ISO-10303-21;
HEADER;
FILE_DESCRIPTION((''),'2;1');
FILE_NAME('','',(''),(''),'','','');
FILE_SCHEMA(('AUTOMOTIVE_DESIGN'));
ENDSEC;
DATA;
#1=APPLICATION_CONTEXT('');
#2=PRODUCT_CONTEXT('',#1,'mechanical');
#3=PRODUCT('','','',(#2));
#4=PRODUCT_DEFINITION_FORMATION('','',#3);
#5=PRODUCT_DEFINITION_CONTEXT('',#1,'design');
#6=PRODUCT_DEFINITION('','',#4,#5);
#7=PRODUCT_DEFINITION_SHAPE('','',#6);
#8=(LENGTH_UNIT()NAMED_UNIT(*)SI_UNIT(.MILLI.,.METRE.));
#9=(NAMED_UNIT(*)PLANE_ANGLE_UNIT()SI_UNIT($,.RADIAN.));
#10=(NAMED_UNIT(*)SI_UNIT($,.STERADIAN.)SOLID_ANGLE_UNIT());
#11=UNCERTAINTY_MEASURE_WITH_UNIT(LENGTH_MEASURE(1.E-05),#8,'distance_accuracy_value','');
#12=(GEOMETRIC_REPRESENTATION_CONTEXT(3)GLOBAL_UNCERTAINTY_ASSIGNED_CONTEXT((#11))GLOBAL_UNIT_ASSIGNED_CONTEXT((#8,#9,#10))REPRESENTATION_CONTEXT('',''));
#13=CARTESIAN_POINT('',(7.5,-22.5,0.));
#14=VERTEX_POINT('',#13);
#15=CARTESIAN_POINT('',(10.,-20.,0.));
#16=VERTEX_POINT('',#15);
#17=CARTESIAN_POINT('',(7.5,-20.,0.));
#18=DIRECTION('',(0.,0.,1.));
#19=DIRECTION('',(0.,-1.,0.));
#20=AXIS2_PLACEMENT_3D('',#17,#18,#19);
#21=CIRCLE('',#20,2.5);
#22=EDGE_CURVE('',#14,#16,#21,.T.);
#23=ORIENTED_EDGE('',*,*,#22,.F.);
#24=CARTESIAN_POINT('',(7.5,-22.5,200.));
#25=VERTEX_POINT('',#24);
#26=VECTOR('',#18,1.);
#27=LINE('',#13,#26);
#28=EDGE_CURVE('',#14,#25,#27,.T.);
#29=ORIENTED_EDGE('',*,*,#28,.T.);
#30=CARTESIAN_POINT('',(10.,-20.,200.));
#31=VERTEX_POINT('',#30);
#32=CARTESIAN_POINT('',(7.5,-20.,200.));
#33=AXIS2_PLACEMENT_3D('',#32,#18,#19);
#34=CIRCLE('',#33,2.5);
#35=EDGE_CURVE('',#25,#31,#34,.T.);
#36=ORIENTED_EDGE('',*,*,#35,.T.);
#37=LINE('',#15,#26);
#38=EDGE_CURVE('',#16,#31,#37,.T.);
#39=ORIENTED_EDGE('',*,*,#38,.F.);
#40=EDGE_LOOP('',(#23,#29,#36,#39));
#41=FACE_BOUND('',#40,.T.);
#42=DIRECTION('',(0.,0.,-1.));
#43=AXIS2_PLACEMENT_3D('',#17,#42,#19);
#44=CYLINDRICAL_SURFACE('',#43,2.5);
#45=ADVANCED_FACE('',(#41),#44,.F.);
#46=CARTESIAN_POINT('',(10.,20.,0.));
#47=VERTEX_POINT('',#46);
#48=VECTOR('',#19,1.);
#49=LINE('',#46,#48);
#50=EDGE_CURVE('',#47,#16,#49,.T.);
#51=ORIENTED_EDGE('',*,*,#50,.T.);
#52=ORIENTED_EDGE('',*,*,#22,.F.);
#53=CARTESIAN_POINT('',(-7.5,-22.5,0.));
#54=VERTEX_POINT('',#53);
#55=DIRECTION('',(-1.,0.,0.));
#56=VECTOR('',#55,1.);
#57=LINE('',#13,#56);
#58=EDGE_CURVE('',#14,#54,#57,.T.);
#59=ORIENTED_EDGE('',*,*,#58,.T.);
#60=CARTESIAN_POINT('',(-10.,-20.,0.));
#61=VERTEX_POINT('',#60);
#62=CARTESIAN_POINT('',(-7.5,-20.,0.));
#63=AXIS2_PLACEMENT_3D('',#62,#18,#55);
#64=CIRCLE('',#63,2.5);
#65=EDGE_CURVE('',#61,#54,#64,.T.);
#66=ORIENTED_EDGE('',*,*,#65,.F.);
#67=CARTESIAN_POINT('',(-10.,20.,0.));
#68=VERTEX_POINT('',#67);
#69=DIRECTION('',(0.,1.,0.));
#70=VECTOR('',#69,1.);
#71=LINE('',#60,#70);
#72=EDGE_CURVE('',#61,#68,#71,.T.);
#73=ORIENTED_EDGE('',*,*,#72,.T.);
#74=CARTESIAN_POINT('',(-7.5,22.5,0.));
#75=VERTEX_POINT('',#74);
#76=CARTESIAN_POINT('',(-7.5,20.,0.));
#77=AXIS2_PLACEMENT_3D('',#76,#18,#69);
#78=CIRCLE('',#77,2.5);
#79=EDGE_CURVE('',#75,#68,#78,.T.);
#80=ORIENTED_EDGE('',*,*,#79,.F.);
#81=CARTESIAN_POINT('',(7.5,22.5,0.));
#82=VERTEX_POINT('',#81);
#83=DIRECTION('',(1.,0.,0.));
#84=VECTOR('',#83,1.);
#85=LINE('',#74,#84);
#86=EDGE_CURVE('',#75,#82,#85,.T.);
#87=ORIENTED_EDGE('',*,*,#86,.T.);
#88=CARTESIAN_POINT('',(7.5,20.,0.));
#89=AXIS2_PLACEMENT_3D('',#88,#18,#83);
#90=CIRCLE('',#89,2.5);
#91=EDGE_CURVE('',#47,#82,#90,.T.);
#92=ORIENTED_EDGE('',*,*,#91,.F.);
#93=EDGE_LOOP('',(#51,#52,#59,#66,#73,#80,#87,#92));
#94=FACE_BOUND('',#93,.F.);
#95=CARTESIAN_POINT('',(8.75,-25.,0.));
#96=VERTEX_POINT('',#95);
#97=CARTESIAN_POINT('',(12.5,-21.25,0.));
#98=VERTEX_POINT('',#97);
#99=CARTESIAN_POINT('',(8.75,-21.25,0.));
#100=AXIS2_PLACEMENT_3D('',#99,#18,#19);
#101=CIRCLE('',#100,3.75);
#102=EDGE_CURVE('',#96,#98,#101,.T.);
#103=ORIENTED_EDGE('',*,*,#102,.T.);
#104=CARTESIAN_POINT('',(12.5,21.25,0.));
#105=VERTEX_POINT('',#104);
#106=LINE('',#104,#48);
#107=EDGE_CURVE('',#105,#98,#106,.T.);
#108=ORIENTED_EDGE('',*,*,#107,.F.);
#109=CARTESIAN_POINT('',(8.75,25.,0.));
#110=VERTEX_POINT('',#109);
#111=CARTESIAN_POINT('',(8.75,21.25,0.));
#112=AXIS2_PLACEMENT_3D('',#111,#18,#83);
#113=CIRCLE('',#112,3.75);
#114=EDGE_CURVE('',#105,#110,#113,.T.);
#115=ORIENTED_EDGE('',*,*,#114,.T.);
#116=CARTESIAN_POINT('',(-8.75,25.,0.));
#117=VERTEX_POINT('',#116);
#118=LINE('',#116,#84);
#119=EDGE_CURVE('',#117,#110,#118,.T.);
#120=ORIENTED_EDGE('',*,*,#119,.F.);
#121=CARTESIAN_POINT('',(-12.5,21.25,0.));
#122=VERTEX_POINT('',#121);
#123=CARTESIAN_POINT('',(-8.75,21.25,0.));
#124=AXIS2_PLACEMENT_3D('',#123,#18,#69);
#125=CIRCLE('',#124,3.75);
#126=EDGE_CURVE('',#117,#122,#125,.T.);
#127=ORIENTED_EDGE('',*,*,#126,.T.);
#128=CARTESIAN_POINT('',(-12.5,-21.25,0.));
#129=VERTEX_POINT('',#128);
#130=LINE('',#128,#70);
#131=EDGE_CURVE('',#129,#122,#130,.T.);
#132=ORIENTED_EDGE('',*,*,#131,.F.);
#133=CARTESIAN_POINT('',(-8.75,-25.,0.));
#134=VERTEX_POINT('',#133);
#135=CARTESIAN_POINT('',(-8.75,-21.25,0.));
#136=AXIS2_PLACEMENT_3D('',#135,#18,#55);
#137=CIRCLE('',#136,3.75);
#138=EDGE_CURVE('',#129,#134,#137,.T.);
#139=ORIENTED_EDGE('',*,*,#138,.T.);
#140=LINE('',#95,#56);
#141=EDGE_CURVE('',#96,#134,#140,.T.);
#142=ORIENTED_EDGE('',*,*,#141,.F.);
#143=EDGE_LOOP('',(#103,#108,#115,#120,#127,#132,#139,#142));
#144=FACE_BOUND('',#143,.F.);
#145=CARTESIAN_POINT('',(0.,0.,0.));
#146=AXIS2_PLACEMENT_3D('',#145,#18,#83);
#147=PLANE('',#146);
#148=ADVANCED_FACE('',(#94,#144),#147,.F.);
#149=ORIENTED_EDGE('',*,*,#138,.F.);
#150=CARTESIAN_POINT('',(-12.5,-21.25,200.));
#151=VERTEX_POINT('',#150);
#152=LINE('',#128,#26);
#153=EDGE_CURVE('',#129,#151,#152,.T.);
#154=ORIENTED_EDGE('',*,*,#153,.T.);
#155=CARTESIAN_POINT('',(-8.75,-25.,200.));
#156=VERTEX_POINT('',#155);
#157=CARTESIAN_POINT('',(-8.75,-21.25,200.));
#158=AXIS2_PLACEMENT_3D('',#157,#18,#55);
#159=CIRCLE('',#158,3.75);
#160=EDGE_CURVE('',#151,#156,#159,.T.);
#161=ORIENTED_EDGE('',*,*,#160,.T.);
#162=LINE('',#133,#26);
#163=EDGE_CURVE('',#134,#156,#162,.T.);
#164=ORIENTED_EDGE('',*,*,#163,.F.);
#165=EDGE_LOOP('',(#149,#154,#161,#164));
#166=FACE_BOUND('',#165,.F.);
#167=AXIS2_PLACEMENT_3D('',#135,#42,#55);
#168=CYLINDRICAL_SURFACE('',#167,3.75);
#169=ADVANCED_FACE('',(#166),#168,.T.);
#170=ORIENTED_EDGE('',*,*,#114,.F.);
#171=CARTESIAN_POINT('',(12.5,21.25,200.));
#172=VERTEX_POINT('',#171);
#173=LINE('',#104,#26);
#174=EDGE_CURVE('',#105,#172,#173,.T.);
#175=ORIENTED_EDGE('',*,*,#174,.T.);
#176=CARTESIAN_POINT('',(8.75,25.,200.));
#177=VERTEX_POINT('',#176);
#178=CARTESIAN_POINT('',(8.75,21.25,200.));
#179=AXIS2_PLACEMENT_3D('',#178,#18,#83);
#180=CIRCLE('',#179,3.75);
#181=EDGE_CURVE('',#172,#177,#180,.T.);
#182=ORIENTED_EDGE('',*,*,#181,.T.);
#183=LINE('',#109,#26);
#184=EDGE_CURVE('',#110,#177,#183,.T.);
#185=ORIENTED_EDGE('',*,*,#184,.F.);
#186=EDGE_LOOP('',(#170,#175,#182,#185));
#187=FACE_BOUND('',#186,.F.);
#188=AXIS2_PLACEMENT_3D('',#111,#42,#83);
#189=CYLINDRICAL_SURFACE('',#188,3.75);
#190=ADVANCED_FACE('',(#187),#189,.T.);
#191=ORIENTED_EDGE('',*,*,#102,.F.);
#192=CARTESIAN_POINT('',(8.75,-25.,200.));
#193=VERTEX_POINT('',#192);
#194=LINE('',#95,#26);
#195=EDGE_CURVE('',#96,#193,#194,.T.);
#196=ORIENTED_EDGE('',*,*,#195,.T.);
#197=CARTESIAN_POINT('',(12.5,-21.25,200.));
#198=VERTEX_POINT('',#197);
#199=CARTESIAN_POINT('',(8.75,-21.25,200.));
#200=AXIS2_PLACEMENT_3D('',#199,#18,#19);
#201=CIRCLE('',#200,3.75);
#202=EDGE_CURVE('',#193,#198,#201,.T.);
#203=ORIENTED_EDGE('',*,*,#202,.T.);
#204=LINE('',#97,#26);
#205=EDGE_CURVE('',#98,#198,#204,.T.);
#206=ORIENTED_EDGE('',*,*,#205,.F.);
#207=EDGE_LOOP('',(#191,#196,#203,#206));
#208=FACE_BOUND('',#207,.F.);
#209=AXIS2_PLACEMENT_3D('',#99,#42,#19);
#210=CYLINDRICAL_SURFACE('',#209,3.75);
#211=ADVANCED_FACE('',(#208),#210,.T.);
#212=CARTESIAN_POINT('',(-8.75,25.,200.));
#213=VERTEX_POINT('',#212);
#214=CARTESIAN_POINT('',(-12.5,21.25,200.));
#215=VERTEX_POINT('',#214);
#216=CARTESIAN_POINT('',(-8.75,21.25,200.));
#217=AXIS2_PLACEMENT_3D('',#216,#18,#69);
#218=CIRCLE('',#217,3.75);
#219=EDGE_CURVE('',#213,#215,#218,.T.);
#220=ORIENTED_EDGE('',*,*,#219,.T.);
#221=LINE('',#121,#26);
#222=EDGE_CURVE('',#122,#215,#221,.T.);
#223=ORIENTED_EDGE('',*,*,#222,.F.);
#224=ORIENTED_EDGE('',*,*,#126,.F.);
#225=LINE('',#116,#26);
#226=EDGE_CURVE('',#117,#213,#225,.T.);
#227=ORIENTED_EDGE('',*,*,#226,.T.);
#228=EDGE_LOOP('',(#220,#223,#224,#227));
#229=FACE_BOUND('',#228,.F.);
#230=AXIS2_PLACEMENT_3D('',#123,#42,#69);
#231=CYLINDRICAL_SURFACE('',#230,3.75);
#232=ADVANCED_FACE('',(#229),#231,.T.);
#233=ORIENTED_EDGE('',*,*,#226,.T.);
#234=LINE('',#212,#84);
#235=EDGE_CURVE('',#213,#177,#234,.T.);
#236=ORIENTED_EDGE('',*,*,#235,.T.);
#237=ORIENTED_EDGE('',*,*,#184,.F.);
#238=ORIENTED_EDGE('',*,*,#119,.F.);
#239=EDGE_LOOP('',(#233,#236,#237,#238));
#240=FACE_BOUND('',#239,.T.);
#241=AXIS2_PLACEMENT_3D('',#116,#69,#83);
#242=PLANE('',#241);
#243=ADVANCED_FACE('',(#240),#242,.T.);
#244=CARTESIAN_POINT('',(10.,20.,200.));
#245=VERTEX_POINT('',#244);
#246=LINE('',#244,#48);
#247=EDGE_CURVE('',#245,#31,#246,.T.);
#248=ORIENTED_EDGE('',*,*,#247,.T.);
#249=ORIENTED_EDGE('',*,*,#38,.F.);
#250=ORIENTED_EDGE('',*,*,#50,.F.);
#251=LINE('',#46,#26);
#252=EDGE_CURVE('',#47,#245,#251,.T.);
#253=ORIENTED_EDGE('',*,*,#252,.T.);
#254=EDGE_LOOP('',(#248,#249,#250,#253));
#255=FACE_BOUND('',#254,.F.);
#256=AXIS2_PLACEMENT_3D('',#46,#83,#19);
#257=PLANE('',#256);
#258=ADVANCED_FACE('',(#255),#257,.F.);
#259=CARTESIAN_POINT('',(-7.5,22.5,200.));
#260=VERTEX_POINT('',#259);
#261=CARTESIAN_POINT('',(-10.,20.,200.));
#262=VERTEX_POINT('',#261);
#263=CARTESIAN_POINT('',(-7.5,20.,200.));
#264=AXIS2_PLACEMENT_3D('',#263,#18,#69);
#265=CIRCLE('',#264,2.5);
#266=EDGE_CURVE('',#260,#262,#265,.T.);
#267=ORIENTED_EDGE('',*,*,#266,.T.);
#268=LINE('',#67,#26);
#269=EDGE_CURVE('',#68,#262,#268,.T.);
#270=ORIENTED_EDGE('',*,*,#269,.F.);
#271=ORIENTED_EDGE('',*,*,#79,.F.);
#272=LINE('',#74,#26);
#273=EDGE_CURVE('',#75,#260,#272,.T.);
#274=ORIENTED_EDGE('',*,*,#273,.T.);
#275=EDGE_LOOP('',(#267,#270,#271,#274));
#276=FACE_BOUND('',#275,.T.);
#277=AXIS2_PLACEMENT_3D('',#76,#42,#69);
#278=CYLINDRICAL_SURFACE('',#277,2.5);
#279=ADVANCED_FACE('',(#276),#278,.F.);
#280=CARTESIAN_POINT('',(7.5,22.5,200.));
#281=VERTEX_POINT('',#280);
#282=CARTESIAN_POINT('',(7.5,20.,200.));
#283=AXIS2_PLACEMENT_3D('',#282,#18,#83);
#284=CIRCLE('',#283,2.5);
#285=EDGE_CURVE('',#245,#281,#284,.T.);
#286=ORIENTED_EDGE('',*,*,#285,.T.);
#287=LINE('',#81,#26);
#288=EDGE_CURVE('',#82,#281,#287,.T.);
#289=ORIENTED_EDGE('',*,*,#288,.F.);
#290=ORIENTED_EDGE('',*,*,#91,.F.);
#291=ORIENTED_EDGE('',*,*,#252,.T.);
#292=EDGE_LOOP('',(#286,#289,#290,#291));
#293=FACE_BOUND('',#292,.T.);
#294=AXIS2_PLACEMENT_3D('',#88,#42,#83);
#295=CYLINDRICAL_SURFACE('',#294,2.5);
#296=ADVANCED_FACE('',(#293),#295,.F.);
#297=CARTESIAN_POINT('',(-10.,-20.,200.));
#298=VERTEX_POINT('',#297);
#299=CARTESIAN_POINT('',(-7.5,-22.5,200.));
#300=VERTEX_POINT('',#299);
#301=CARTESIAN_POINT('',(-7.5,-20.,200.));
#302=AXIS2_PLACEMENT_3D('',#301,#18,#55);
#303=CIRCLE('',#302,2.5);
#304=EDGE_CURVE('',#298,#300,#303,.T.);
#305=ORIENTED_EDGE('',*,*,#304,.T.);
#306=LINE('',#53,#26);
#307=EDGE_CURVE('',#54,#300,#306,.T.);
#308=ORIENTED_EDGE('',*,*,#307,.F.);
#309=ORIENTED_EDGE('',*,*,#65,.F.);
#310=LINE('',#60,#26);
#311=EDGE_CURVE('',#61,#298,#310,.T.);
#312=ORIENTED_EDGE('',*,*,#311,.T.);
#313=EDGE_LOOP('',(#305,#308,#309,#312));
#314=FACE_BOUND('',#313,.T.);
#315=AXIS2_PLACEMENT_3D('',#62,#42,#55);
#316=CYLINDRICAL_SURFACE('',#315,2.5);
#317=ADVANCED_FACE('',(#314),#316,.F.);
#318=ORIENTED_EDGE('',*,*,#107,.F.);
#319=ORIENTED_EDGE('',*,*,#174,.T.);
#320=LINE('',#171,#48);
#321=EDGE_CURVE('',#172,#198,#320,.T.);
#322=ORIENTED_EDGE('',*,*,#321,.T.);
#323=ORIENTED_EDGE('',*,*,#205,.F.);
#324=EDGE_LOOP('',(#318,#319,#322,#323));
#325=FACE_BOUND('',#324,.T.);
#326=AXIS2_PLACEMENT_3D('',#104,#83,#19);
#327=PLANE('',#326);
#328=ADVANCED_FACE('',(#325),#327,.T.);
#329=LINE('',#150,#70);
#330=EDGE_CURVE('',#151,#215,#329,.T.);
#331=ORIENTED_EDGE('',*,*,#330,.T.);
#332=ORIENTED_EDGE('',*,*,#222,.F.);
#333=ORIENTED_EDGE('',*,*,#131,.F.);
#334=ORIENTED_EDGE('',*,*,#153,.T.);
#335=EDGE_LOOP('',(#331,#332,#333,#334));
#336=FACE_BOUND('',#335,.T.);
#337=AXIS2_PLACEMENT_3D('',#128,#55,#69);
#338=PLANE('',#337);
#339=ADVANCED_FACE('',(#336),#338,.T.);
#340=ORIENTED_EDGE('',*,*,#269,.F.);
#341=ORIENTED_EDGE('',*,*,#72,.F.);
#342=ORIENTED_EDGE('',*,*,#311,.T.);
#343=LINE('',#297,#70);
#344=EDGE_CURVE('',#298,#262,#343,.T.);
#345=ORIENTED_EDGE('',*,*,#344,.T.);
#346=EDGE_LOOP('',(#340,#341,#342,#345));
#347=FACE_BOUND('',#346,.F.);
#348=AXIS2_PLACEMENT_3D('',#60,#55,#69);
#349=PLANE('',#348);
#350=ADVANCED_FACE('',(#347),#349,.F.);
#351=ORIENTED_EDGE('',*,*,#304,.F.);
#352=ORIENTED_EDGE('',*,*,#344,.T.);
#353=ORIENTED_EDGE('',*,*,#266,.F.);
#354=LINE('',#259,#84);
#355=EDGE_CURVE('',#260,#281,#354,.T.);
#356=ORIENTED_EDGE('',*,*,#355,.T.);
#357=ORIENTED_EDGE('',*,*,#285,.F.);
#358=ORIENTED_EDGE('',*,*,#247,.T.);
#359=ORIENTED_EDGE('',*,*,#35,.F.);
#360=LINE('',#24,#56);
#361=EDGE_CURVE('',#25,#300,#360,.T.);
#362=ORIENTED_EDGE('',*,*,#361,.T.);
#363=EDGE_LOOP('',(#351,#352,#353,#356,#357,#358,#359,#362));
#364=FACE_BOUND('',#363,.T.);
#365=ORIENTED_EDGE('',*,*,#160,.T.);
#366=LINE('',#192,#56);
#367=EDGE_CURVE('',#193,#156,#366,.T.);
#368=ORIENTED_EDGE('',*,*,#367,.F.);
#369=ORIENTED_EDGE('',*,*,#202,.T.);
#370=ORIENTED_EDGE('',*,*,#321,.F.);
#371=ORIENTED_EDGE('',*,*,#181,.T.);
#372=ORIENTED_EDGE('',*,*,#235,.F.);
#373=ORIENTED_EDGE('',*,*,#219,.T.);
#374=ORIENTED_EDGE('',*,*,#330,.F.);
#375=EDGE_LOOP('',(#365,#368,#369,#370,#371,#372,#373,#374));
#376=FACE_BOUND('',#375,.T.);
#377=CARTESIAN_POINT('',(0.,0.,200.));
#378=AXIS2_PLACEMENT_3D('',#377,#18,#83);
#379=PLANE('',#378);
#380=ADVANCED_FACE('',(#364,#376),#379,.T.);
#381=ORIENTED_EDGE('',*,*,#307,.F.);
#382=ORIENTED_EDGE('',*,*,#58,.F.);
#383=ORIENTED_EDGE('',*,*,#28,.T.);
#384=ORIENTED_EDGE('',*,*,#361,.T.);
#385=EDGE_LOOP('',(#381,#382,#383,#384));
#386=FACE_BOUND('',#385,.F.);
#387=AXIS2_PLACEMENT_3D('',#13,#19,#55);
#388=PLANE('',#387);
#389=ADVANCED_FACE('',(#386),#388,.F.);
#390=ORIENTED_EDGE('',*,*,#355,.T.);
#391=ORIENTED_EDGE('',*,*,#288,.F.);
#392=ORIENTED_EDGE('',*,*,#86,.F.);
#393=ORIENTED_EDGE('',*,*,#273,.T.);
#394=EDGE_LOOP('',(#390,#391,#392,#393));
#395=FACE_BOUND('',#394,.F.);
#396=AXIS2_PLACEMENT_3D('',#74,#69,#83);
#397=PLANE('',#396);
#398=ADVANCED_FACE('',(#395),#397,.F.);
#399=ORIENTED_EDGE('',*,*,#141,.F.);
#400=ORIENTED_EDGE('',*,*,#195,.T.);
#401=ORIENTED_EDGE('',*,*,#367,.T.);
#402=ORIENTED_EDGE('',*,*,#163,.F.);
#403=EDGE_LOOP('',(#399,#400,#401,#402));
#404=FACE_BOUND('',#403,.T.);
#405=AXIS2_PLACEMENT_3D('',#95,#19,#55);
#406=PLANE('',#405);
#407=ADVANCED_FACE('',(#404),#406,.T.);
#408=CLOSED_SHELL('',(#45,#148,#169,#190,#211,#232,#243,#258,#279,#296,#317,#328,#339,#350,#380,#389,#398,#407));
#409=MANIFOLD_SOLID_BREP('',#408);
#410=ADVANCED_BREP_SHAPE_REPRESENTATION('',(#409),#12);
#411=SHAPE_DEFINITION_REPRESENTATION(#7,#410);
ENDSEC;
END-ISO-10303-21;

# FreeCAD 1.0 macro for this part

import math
import FreeCAD as App
import Part
import Sketcher
from FreeCAD import Vector
Q = App.Units.Quantity

doc = App.newDocument("Part")
body = doc.addObject("PartDesign::Body", "Body")

sketch1 = body.newObject("Sketcher::SketchObject", "Sketch")
sketch1.AttachmentSupport = (doc.getObject("XY_Plane"), [""])
sketch1.MapMode = "FlatFace"
sketch1.addGeometry(Part.LineSegment(Vector(-12.5, 21.2, 0), Vector(-12.5, -21.2, 0)), False)
sketch1.addGeometry(Part.ArcOfCircle(Part.Circle(Vector(-8.8, -21.2, 0), Vector(0, 0, 1), 3.8), math.radians(180), math.radians(270)), False)
sketch1.addGeometry(Part.LineSegment(Vector(-8.8, -25, 0), Vector(8.8, -25, 0)), False)
sketch1.addGeometry(Part.ArcOfCircle(Part.Circle(Vector(8.8, -21.2, 0), Vector(0, 0, 1), 3.8), math.radians(-90), math.radians(0)), False)
sketch1.addGeometry(Part.LineSegment(Vector(12.5, -21.2, 0), Vector(12.5, 21.2, 0)), False)
sketch1.addGeometry(Part.ArcOfCircle(Part.Circle(Vector(8.8, 21.2, 0), Vector(0, 0, 1), 3.8), math.radians(0), math.radians(90)), False)
sketch1.addGeometry(Part.LineSegment(Vector(8.8, 25, 0), Vector(-8.8, 25, 0)), False)
sketch1.addGeometry(Part.ArcOfCircle(Part.Circle(Vector(-8.8, 21.2, 0), Vector(0, 0, 1), 3.8), math.radians(90), math.radians(180)), False)
sketch1.addGeometry(Part.ArcOfCircle(Part.Circle(Vector(-7.5, 20, 0), Vector(0, 0, 1), 2.5), math.radians(90), math.radians(180)), False)
sketch1.addGeometry(Part.LineSegment(Vector(-7.5, 22.5, 0), Vector(7.5, 22.5, 0)), False)
sketch1.addGeometry(Part.ArcOfCircle(Part.Circle(Vector(7.5, 20, 0), Vector(0, 0, 1), 2.5), math.radians(0), math.radians(90)), False)
sketch1.addGeometry(Part.LineSegment(Vector(10, 20, 0), Vector(10, -20, 0)), False)
sketch1.addGeometry(Part.ArcOfCircle(Part.Circle(Vector(7.5, -20, 0), Vector(0, 0, 1), 2.5), math.radians(-90), math.radians(0)), False)
sketch1.addGeometry(Part.LineSegment(Vector(7.5, -22.5, 0), Vector(-7.5, -22.5, 0)), False)
sketch1.addGeometry(Part.ArcOfCircle(Part.Circle(Vector(-7.5, -20, 0), Vector(0, 0, 1), 2.5), math.radians(180), math.radians(270)), False)
sketch1.addGeometry(Part.LineSegment(Vector(-10, -20, 0), Vector(-10, 20, 0)), False)
sketch1.addConstraint(Sketcher.Constraint("Tangent", 0, 2, 1, 1))
sketch1.addConstraint(Sketcher.Constraint("Tangent", 1, 2, 2, 1))
sketch1.addConstraint(Sketcher.Constraint("Tangent", 2, 2, 3, 1))
sketch1.addConstraint(Sketcher.Constraint("Tangent", 3, 2, 4, 1))
sketch1.addConstraint(Sketcher.Constraint("Tangent", 4, 2, 5, 1))
sketch1.addConstraint(Sketcher.Constraint("Tangent", 5, 2, 6, 1))
sketch1.addConstraint(Sketcher.Constraint("Tangent", 6, 2, 7, 1))
sketch1.addConstraint(Sketcher.Constraint("Tangent", 7, 2, 0, 1))
sketch1.addConstraint(Sketcher.Constraint("Tangent", 8, 1, 9, 1))
sketch1.addConstraint(Sketcher.Constraint("Tangent", 9, 2, 10, 2))
sketch1.addConstraint(Sketcher.Constraint("Tangent", 10, 1, 11, 1))
sketch1.addConstraint(Sketcher.Constraint("Tangent", 11, 2, 12, 2))
sketch1.addConstraint(Sketcher.Constraint("Tangent", 12, 1, 13, 1))
sketch1.addConstraint(Sketcher.Constraint("Tangent", 13, 2, 14, 2))
sketch1.addConstraint(Sketcher.Constraint("Tangent", 14, 1, 15, 1))
sketch1.addConstraint(Sketcher.Constraint("Tangent", 15, 2, 8, 2))
sketch1.addConstraint(Sketcher.Constraint("Vertical", 0))
sketch1.addConstraint(Sketcher.Constraint("Horizontal", 2))
sketch1.addConstraint(Sketcher.Constraint("Vertical", 4))
sketch1.addConstraint(Sketcher.Constraint("Horizontal", 6))
sketch1.addConstraint(Sketcher.Constraint("Horizontal", 9))
sketch1.addConstraint(Sketcher.Constraint("Vertical", 11))
sketch1.addConstraint(Sketcher.Constraint("Horizontal", 13))
sketch1.addConstraint(Sketcher.Constraint("Vertical", 15))
sketch1.addConstraint(Sketcher.Constraint("Equal", 1, 3))
sketch1.addConstraint(Sketcher.Constraint("Equal", 3, 5))
sketch1.addConstraint(Sketcher.Constraint("Equal", 5, 7))
sketch1.addConstraint(Sketcher.Constraint("Equal", 8, 10))
sketch1.addConstraint(Sketcher.Constraint("Equal", 10, 12))
sketch1.addConstraint(Sketcher.Constraint("Equal", 12, 14))
sketch1.addConstraint(Sketcher.Constraint("Symmetric", 1, 3, 5, 3, -1, 1))
sketch1.addConstraint(Sketcher.Constraint("Symmetric", 8, 3, 12, 3, -1, 1))
sketch1.addConstraint(Sketcher.Constraint("Radius", 8, Q("2.5 mm")))
sketch1.addConstraint(Sketcher.Constraint("Radius", 1, Q("3.75 mm")))
sketch1.addConstraint(Sketcher.Constraint("DistanceY", 1, 2, -1, 1, Q("25 mm")))
sketch1.addConstraint(Sketcher.Constraint("DistanceX", 0, 2, -1, 1, Q("12.5 mm")))
sketch1.addConstraint(Sketcher.Constraint("DistanceY", 8, 1, 6, 2, Q("2.5 mm")))
sketch1.addConstraint(Sketcher.Constraint("DistanceX", 10, 1, 4, 2, Q("2.5 mm")))
pad1 = body.newObject("PartDesign::Pad", "Pad")
pad1.Profile = sketch1
pad1.Length = 200

doc.recompute()
